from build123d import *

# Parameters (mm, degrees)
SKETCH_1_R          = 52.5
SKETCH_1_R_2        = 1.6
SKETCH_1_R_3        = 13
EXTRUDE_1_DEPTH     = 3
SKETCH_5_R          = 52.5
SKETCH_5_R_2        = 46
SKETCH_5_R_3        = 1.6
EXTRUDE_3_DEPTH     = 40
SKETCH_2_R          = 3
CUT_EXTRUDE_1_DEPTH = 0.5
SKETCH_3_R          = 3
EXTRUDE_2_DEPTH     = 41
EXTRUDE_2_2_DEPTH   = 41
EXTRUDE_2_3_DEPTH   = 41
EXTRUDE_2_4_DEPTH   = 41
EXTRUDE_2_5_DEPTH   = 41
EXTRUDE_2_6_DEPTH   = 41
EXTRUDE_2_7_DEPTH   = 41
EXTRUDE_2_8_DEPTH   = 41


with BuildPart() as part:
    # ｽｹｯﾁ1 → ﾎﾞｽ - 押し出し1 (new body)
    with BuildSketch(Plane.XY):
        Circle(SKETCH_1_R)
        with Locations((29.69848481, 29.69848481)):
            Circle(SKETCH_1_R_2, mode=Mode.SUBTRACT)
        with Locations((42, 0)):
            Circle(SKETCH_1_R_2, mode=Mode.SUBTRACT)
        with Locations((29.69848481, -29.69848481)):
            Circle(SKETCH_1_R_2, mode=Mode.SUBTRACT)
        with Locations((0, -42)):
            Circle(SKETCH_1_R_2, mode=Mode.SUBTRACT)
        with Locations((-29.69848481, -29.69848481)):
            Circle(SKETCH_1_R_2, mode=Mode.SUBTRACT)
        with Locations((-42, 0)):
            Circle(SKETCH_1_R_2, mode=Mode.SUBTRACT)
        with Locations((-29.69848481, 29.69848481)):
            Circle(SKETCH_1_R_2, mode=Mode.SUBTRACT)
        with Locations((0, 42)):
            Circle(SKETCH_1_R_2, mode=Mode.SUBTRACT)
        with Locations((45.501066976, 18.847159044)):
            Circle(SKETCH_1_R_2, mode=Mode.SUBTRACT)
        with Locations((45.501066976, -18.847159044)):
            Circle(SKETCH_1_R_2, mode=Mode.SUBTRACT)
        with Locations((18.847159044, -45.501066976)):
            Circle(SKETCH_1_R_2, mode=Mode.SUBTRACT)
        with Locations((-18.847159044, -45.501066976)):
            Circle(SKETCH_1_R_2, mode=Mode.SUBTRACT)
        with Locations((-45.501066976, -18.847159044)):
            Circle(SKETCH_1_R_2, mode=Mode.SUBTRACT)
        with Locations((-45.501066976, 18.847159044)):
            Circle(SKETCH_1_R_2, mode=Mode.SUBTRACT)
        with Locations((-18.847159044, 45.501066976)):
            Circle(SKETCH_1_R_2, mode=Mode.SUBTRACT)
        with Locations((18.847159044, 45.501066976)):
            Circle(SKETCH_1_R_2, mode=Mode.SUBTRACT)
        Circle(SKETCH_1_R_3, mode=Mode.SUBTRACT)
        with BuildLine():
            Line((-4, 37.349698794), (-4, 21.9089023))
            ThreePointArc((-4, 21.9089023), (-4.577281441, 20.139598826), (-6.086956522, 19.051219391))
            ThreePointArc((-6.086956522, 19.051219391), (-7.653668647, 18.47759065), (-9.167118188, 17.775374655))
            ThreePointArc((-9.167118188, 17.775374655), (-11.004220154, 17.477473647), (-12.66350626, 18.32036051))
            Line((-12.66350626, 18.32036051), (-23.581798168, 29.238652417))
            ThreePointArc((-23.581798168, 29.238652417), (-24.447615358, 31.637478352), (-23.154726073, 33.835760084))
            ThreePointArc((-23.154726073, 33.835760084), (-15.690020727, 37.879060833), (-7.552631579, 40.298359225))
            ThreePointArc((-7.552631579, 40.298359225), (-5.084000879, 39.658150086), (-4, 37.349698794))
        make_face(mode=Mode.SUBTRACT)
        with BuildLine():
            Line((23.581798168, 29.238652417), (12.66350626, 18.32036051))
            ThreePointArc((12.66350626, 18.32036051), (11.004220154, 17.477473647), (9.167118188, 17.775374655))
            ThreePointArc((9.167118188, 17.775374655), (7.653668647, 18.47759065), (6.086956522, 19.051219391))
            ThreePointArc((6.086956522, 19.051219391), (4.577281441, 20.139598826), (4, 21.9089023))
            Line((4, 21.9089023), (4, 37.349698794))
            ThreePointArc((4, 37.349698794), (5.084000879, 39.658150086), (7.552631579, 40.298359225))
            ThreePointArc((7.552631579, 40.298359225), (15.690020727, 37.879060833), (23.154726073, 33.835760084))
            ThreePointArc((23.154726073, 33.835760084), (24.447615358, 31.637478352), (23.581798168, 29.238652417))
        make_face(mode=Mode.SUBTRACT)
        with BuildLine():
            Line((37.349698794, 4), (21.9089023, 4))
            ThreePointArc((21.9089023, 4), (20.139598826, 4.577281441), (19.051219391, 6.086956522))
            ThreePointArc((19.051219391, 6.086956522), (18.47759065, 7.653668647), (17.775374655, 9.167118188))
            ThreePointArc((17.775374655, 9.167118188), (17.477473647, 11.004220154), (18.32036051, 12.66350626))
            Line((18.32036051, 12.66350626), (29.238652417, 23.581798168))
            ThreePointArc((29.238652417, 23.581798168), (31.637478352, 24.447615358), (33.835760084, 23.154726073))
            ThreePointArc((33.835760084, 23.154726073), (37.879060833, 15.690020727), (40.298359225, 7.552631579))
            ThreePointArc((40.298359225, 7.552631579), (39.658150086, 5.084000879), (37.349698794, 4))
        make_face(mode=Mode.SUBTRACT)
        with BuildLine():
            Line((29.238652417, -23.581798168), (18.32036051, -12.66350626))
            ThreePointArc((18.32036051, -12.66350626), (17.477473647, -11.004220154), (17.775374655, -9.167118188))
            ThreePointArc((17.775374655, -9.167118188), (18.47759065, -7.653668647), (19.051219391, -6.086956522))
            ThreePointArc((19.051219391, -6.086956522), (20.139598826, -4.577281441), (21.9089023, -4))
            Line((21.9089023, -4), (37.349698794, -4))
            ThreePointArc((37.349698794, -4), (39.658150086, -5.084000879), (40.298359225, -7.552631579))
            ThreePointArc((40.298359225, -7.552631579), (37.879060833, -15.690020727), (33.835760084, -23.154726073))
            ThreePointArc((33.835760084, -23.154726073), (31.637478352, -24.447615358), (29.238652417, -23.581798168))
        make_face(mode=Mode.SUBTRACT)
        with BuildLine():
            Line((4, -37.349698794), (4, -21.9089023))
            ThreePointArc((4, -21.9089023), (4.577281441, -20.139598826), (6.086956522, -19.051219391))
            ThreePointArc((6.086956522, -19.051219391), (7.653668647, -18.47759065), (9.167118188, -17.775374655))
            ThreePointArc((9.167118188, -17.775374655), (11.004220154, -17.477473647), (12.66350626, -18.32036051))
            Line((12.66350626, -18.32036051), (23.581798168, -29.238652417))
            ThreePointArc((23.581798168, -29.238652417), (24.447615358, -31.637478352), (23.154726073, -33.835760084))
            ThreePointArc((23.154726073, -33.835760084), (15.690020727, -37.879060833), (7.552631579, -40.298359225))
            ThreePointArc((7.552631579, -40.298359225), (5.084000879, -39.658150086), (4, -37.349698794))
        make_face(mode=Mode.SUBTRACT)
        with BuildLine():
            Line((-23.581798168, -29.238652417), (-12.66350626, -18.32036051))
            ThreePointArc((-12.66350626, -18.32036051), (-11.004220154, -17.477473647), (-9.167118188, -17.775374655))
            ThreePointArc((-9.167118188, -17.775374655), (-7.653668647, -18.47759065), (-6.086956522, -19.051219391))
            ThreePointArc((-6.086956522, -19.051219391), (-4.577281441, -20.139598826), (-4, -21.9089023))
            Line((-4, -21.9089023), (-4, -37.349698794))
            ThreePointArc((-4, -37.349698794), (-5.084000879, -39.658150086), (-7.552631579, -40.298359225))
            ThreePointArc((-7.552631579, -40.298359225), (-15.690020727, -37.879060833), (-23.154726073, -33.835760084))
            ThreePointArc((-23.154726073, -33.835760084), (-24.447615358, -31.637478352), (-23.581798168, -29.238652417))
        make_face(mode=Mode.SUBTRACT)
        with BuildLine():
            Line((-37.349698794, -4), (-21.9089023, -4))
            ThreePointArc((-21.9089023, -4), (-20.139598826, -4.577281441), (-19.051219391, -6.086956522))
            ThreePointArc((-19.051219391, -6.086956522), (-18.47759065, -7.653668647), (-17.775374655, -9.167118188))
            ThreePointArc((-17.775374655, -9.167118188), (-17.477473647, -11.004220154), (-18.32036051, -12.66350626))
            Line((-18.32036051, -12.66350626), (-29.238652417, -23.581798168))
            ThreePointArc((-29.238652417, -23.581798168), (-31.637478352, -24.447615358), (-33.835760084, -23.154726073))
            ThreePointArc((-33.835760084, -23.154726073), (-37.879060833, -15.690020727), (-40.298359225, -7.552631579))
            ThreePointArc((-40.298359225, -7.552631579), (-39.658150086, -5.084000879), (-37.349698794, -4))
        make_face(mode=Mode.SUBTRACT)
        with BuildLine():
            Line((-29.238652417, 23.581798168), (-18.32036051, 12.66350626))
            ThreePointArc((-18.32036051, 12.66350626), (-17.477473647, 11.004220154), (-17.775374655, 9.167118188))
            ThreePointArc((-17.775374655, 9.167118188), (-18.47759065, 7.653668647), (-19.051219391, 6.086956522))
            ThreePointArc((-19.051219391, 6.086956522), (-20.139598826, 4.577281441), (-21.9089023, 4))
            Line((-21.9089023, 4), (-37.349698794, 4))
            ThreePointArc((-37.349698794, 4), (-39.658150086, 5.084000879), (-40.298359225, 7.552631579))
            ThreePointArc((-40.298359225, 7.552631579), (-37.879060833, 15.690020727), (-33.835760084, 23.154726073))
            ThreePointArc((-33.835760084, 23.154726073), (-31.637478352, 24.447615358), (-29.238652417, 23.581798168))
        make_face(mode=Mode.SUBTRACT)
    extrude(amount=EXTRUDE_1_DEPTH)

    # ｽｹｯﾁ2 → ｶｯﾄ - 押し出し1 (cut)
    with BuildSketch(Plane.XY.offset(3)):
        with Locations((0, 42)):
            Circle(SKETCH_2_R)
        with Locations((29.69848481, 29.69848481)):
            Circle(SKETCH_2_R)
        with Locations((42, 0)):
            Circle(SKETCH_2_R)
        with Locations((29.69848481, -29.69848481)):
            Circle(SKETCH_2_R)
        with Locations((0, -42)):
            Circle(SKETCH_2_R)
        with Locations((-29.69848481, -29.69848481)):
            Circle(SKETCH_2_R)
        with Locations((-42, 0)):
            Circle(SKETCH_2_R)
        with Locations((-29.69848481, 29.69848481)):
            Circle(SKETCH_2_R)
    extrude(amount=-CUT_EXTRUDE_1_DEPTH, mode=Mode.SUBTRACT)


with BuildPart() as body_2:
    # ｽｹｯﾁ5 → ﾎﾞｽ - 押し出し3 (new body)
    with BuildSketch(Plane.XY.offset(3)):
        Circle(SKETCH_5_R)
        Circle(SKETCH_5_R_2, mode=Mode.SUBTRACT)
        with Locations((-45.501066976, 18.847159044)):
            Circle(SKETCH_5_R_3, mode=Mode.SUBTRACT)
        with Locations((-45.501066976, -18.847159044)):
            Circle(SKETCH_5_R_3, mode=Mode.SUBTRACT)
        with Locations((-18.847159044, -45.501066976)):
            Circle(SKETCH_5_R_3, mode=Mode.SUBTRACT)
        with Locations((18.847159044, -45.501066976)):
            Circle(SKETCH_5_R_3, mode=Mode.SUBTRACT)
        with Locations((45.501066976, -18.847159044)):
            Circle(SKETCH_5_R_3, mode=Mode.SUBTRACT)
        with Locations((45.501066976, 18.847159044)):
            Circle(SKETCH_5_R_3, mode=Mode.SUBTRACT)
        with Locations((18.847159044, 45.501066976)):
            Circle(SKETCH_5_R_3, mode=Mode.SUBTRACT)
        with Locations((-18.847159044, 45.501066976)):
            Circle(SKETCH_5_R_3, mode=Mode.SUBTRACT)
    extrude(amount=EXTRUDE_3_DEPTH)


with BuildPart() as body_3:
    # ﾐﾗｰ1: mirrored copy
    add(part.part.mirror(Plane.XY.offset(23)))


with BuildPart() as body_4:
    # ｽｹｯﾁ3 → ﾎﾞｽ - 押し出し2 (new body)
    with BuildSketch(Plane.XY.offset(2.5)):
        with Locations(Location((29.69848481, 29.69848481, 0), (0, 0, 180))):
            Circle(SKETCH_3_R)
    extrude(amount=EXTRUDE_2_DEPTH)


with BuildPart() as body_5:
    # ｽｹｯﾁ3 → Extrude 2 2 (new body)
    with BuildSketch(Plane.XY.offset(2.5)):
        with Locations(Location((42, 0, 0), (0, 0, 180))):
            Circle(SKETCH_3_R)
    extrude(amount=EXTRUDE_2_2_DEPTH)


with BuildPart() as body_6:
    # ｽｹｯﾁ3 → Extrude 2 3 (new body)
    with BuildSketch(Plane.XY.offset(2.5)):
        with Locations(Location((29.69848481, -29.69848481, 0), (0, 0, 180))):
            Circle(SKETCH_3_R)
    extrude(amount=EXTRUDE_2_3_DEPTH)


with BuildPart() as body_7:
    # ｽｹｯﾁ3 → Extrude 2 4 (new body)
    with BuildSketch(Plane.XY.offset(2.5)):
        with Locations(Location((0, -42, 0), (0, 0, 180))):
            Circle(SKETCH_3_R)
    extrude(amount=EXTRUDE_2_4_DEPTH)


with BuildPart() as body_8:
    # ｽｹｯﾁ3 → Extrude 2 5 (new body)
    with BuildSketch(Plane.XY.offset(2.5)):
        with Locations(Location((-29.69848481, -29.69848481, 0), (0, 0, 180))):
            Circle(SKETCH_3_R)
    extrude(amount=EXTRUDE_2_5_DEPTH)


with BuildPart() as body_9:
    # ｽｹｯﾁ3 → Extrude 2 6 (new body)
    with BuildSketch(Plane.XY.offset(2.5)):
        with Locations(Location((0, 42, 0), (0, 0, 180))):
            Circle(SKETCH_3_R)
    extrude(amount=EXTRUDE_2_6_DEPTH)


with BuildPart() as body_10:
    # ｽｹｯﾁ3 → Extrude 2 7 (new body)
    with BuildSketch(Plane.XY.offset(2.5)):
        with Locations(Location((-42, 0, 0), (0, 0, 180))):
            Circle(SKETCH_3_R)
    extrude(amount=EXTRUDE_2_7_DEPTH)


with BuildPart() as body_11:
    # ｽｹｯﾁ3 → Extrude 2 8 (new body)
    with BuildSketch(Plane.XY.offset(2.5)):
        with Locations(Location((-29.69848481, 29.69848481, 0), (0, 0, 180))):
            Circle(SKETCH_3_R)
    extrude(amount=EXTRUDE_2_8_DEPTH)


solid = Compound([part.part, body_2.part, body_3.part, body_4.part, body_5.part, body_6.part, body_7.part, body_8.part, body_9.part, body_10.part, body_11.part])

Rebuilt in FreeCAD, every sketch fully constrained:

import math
import FreeCAD as App
import Part
import Sketcher
from FreeCAD import Vector

doc = App.newDocument("Part")
body = doc.addObject("PartDesign::Body", "Body")

# Sketch on XY plane
sketch1 = body.newObject("Sketcher::SketchObject", "Sketch")
sketch1.AttachmentSupport = (doc.getObject("XY_Plane"), [""])
sketch1.MapMode = "FlatFace"
sketch1.addGeometry([
    Part.Circle(Vector(0, 0, 0), Vector(0, 0, 1), 52.5),  # 0
    Part.Circle(Vector(-29.7, -29.7, 0), Vector(0, 0, 1), 1.6),  # 1
    Part.Circle(Vector(-18.8, -45.5, 0), Vector(0, 0, 1), 1.6),  # 2
    Part.ArcOfCircle(Part.Circle(Vector(-21.5, -31.4, 0), Vector(0, 0, 1), 3), math.radians(135), math.radians(236)),  # 3
    Part.LineSegment(Vector(-23.6, -29.2, 0), Vector(-12.7, -18.3, 0)),  # 4
    Part.ArcOfCircle(Part.Circle(Vector(-10.5, -20.4, 0), Vector(0, 0, 1), 3), math.radians(63), math.radians(135)),  # 5
    Part.ArcOfCircle(Part.Circle(Vector(0, 0, 0), Vector(0, 0, 1), 20), math.radians(-117.28), math.radians(-107.72)),  # 6
    Part.ArcOfCircle(Part.Circle(Vector(-7, -21.9, 0), Vector(0, 0, 1), 3), math.radians(0), math.radians(72)),  # 7
    Part.LineSegment(Vector(-4, -21.9, 0), Vector(-4, -37.3, 0)),  # 8
    Part.ArcOfCircle(Part.Circle(Vector(-7, -37.3, 0), Vector(0, 0, 1), 3), math.radians(-101), math.radians(0)),  # 9
    Part.ArcOfCircle(Part.Circle(Vector(0, 0, 0), Vector(0, 0, 1), 41), math.radians(-124), math.radians(-101)),  # 10
    Part.Circle(Vector(-45.5, -18.8, 0), Vector(0, 0, 1), 1.6),  # 11
    Part.ArcOfCircle(Part.Circle(Vector(-37.3, -7, 0), Vector(0, 0, 1), 3), math.radians(90), math.radians(191)),  # 12
    Part.LineSegment(Vector(-37.3, -4, 0), Vector(-21.9, -4, 0)),  # 13
    Part.ArcOfCircle(Part.Circle(Vector(-21.9, -7, 0), Vector(0, 0, 1), 3), math.radians(18), math.radians(90)),  # 14
    Part.ArcOfCircle(Part.Circle(Vector(0, 0, 0), Vector(0, 0, 1), 20), math.radians(-162.28), math.radians(-152.72)),  # 15
    Part.ArcOfCircle(Part.Circle(Vector(-20.4, -10.5, 0), Vector(0, 0, 1), 3), math.radians(-45), math.radians(27)),  # 16
    Part.LineSegment(Vector(-18.3, -12.7, 0), Vector(-29.2, -23.6, 0)),  # 17
    Part.ArcOfCircle(Part.Circle(Vector(-31.4, -21.5, 0), Vector(0, 0, 1), 3), math.radians(-146), math.radians(-45)),  # 18
    Part.ArcOfCircle(Part.Circle(Vector(0, 0, 0), Vector(0, 0, 1), 41), math.radians(-169), math.radians(-146)),  # 19
    Part.Circle(Vector(0, -42, 0), Vector(0, 0, 1), 1.6),  # 20
    Part.Circle(Vector(18.8, -45.5, 0), Vector(0, 0, 1), 1.6),  # 21
    Part.ArcOfCircle(Part.Circle(Vector(7, -37.3, 0), Vector(0, 0, 1), 3), math.radians(180), math.radians(281)),  # 22
    Part.LineSegment(Vector(4, -37.3, 0), Vector(4, -21.9, 0)),  # 23
    Part.ArcOfCircle(Part.Circle(Vector(7, -21.9, 0), Vector(0, 0, 1), 3), math.radians(108), math.radians(180)),  # 24
    Part.ArcOfCircle(Part.Circle(Vector(0, 0, 0), Vector(0, 0, 1), 20), math.radians(-72.28), math.radians(-62.72)),  # 25
    Part.ArcOfCircle(Part.Circle(Vector(10.5, -20.4, 0), Vector(0, 0, 1), 3), math.radians(45), math.radians(117)),  # 26
    Part.LineSegment(Vector(12.7, -18.3, 0), Vector(23.6, -29.2, 0)),  # 27
    Part.ArcOfCircle(Part.Circle(Vector(21.5, -31.4, 0), Vector(0, 0, 1), 3), math.radians(-56), math.radians(45)),  # 28
    Part.ArcOfCircle(Part.Circle(Vector(0, 0, 0), Vector(0, 0, 1), 41), math.radians(-79), math.radians(-56)),  # 29
    Part.Circle(Vector(29.7, -29.7, 0), Vector(0, 0, 1), 1.6),  # 30
    Part.ArcOfCircle(Part.Circle(Vector(31.4, -21.5, 0), Vector(0, 0, 1), 3), math.radians(-135), math.radians(-34)),  # 31
    Part.LineSegment(Vector(29.2, -23.6, 0), Vector(18.3, -12.7, 0)),  # 32
    Part.ArcOfCircle(Part.Circle(Vector(20.4, -10.5, 0), Vector(0, 0, 1), 3), math.radians(153), math.radians(225)),  # 33
    Part.ArcOfCircle(Part.Circle(Vector(0, 0, 0), Vector(0, 0, 1), 20), math.radians(-27.28), math.radians(-17.72)),  # 34
    Part.ArcOfCircle(Part.Circle(Vector(21.9, -7, 0), Vector(0, 0, 1), 3), math.radians(90), math.radians(162)),  # 35
    Part.LineSegment(Vector(21.9, -4, 0), Vector(37.3, -4, 0)),  # 36
    Part.ArcOfCircle(Part.Circle(Vector(37.3, -7, 0), Vector(0, 0, 1), 3), math.radians(-11), math.radians(90)),  # 37
    Part.ArcOfCircle(Part.Circle(Vector(0, 0, 0), Vector(0, 0, 1), 41), math.radians(-34), math.radians(-11)),  # 38
    Part.Circle(Vector(45.5, -18.8, 0), Vector(0, 0, 1), 1.6),  # 39
    Part.Circle(Vector(-42, 0, 0), Vector(0, 0, 1), 1.6),  # 40
    Part.Circle(Vector(-45.5, 18.8, 0), Vector(0, 0, 1), 1.6),  # 41
    Part.ArcOfCircle(Part.Circle(Vector(-31.4, 21.5, 0), Vector(0, 0, 1), 3), math.radians(45), math.radians(146)),  # 42
    Part.LineSegment(Vector(-29.2, 23.6, 0), Vector(-18.3, 12.7, 0)),  # 43
    Part.ArcOfCircle(Part.Circle(Vector(-20.4, 10.5, 0), Vector(0, 0, 1), 3), math.radians(-27), math.radians(45)),  # 44
    Part.ArcOfCircle(Part.Circle(Vector(0, 0, 0), Vector(0, 0, 1), 20), math.radians(152.72), math.radians(162.28)),  # 45
    Part.ArcOfCircle(Part.Circle(Vector(-21.9, 7, 0), Vector(0, 0, 1), 3), math.radians(-90), math.radians(-18)),  # 46
    Part.LineSegment(Vector(-21.9, 4, 0), Vector(-37.3, 4, 0)),  # 47
    Part.ArcOfCircle(Part.Circle(Vector(-37.3, 7, 0), Vector(0, 0, 1), 3), math.radians(169), math.radians(270)),  # 48
    Part.ArcOfCircle(Part.Circle(Vector(0, 0, 0), Vector(0, 0, 1), 41), math.radians(146), math.radians(169)),  # 49
    Part.Circle(Vector(-29.7, 29.7, 0), Vector(0, 0, 1), 1.6),  # 50
    Part.ArcOfCircle(Part.Circle(Vector(-7, 37.3, 0), Vector(0, 0, 1), 3), math.radians(0), math.radians(101)),  # 51
    Part.LineSegment(Vector(-4, 37.3, 0), Vector(-4, 21.9, 0)),  # 52
    Part.ArcOfCircle(Part.Circle(Vector(-7, 21.9, 0), Vector(0, 0, 1), 3), math.radians(-72), math.radians(0)),  # 53
    Part.ArcOfCircle(Part.Circle(Vector(0, 0, 0), Vector(0, 0, 1), 20), math.radians(107.72), math.radians(117.28)),  # 54
    Part.ArcOfCircle(Part.Circle(Vector(-10.5, 20.4, 0), Vector(0, 0, 1), 3), math.radians(-135), math.radians(-63)),  # 55
    Part.LineSegment(Vector(-12.7, 18.3, 0), Vector(-23.6, 29.2, 0)),  # 56
    Part.ArcOfCircle(Part.Circle(Vector(-21.5, 31.4, 0), Vector(0, 0, 1), 3), math.radians(124), math.radians(225)),  # 57
    Part.ArcOfCircle(Part.Circle(Vector(0, 0, 0), Vector(0, 0, 1), 41), math.radians(101), math.radians(124)),  # 58
    Part.Circle(Vector(-18.8, 45.5, 0), Vector(0, 0, 1), 1.6),  # 59
    Part.Circle(Vector(0, 0, 0), Vector(0, 0, 1), 13),  # 60
    Part.Circle(Vector(42, 0, 0), Vector(0, 0, 1), 1.6),  # 61
    Part.ArcOfCircle(Part.Circle(Vector(37.3, 7, 0), Vector(0, 0, 1), 3), math.radians(-90), math.radians(11)),  # 62
    Part.LineSegment(Vector(37.3, 4, 0), Vector(21.9, 4, 0)),  # 63
    Part.ArcOfCircle(Part.Circle(Vector(21.9, 7, 0), Vector(0, 0, 1), 3), math.radians(-162), math.radians(-90)),  # 64
    Part.ArcOfCircle(Part.Circle(Vector(0, 0, 0), Vector(0, 0, 1), 20), math.radians(17.72), math.radians(27.28)),  # 65
    Part.ArcOfCircle(Part.Circle(Vector(20.4, 10.5, 0), Vector(0, 0, 1), 3), math.radians(135), math.radians(207)),  # 66
    Part.LineSegment(Vector(18.3, 12.7, 0), Vector(29.2, 23.6, 0)),  # 67
    Part.ArcOfCircle(Part.Circle(Vector(31.4, 21.5, 0), Vector(0, 0, 1), 3), math.radians(34), math.radians(135)),  # 68
    Part.ArcOfCircle(Part.Circle(Vector(0, 0, 0), Vector(0, 0, 1), 41), math.radians(11), math.radians(34)),  # 69
    Part.Circle(Vector(45.5, 18.8, 0), Vector(0, 0, 1), 1.6),  # 70
    Part.ArcOfCircle(Part.Circle(Vector(21.5, 31.4, 0), Vector(0, 0, 1), 3), math.radians(-45), math.radians(56)),  # 71
    Part.LineSegment(Vector(23.6, 29.2, 0), Vector(12.7, 18.3, 0)),  # 72
    Part.ArcOfCircle(Part.Circle(Vector(10.5, 20.4, 0), Vector(0, 0, 1), 3), math.radians(-117), math.radians(-45)),  # 73
    Part.ArcOfCircle(Part.Circle(Vector(0, 0, 0), Vector(0, 0, 1), 20), math.radians(62.72), math.radians(72.28)),  # 74
    Part.ArcOfCircle(Part.Circle(Vector(7, 21.9, 0), Vector(0, 0, 1), 3), math.radians(-180), math.radians(-108)),  # 75
    Part.LineSegment(Vector(4, 21.9, 0), Vector(4, 37.3, 0)),  # 76
    Part.ArcOfCircle(Part.Circle(Vector(7, 37.3, 0), Vector(0, 0, 1), 3), math.radians(79), math.radians(180)),  # 77
    Part.ArcOfCircle(Part.Circle(Vector(0, 0, 0), Vector(0, 0, 1), 41), math.radians(56), math.radians(79)),  # 78
    Part.Circle(Vector(0, 42, 0), Vector(0, 0, 1), 1.6),  # 79
    Part.Circle(Vector(18.8, 45.5, 0), Vector(0, 0, 1), 1.6),  # 80
    Part.Circle(Vector(29.7, 29.7, 0), Vector(0, 0, 1), 1.6),  # 81
], False)
sketch1.addConstraint([
    Sketcher.Constraint("Tangent", 3, 1, 4, 1),
    Sketcher.Constraint("Tangent", 4, 2, 5, 2),
    Sketcher.Constraint("Tangent", 5, 1, 6, 1),
    Sketcher.Constraint("Tangent", 6, 2, 7, 2),
    Sketcher.Constraint("Tangent", 7, 1, 8, 1),
    Sketcher.Constraint("Tangent", 8, 2, 9, 2),
    Sketcher.Constraint("Tangent", 9, 1, 10, 2),
    Sketcher.Constraint("Tangent", 10, 1, 3, 2),
    Sketcher.Constraint("Tangent", 12, 1, 13, 1),
    Sketcher.Constraint("Tangent", 13, 2, 14, 2),
    Sketcher.Constraint("Tangent", 14, 1, 15, 1),
    Sketcher.Constraint("Tangent", 15, 2, 16, 2),
    Sketcher.Constraint("Tangent", 16, 1, 17, 1),
    Sketcher.Constraint("Tangent", 17, 2, 18, 2),
    Sketcher.Constraint("Tangent", 18, 1, 19, 2),
    Sketcher.Constraint("Tangent", 19, 1, 12, 2),
    Sketcher.Constraint("Tangent", 22, 1, 23, 1),
    Sketcher.Constraint("Tangent", 23, 2, 24, 2),
    Sketcher.Constraint("Tangent", 24, 1, 25, 1),
    Sketcher.Constraint("Tangent", 25, 2, 26, 2),
    Sketcher.Constraint("Tangent", 26, 1, 27, 1),
    Sketcher.Constraint("Tangent", 27, 2, 28, 2),
    Sketcher.Constraint("Tangent", 28, 1, 29, 2),
    Sketcher.Constraint("Tangent", 29, 1, 22, 2),
    Sketcher.Constraint("Tangent", 31, 1, 32, 1),
    Sketcher.Constraint("Tangent", 32, 2, 33, 2),
    Sketcher.Constraint("Tangent", 33, 1, 34, 1),
    Sketcher.Constraint("Tangent", 34, 2, 35, 2),
    Sketcher.Constraint("Tangent", 35, 1, 36, 1),
    Sketcher.Constraint("Tangent", 36, 2, 37, 2),
    Sketcher.Constraint("Tangent", 37, 1, 38, 2),
    Sketcher.Constraint("Tangent", 38, 1, 31, 2),
    Sketcher.Constraint("Tangent", 42, 1, 43, 1),
    Sketcher.Constraint("Tangent", 43, 2, 44, 2),
    Sketcher.Constraint("Tangent", 44, 1, 45, 1),
    Sketcher.Constraint("Tangent", 45, 2, 46, 2),
    Sketcher.Constraint("Tangent", 46, 1, 47, 1),
    Sketcher.Constraint("Tangent", 47, 2, 48, 2),
    Sketcher.Constraint("Tangent", 48, 1, 49, 2),
    Sketcher.Constraint("Tangent", 49, 1, 42, 2),
    Sketcher.Constraint("Tangent", 51, 1, 52, 1),
    Sketcher.Constraint("Tangent", 52, 2, 53, 2),
    Sketcher.Constraint("Tangent", 53, 1, 54, 1),
    Sketcher.Constraint("Tangent", 54, 2, 55, 2),
    Sketcher.Constraint("Tangent", 55, 1, 56, 1),
    Sketcher.Constraint("Tangent", 56, 2, 57, 2),
    Sketcher.Constraint("Tangent", 57, 1, 58, 2),
    Sketcher.Constraint("Tangent", 58, 1, 51, 2),
    Sketcher.Constraint("Tangent", 62, 1, 63, 1),
    Sketcher.Constraint("Tangent", 63, 2, 64, 2),
    Sketcher.Constraint("Tangent", 64, 1, 65, 1),
    Sketcher.Constraint("Tangent", 65, 2, 66, 2),
    Sketcher.Constraint("Tangent", 66, 1, 67, 1),
    Sketcher.Constraint("Tangent", 67, 2, 68, 2),
    Sketcher.Constraint("Tangent", 68, 1, 69, 2),
    Sketcher.Constraint("Tangent", 69, 1, 62, 2),
    Sketcher.Constraint("Tangent", 71, 1, 72, 1),
    Sketcher.Constraint("Tangent", 72, 2, 73, 2),
    Sketcher.Constraint("Tangent", 73, 1, 74, 1),
    Sketcher.Constraint("Tangent", 74, 2, 75, 2),
    Sketcher.Constraint("Tangent", 75, 1, 76, 1),
    Sketcher.Constraint("Tangent", 76, 2, 77, 2),
    Sketcher.Constraint("Tangent", 77, 1, 78, 2),
    Sketcher.Constraint("Tangent", 78, 1, 71, 2),
    Sketcher.Constraint("Vertical", 8),
    Sketcher.Constraint("Horizontal", 13),
    Sketcher.Constraint("Vertical", 23),
    Sketcher.Constraint("Horizontal", 36),
    Sketcher.Constraint("Horizontal", 47),
    Sketcher.Constraint("Vertical", 52),
    Sketcher.Constraint("Horizontal", 63),
    Sketcher.Constraint("Vertical", 76),
    Sketcher.Constraint("Coincident", 0, 3, -1, 1),
    Sketcher.Constraint("Coincident", 6, 3, -1, 1),
    Sketcher.Constraint("Coincident", 10, 3, -1, 1),
    Sketcher.Constraint("Coincident", 15, 3, -1, 1),
    Sketcher.Constraint("Coincident", 19, 3, -1, 1),
    Sketcher.Constraint("Coincident", 25, 3, -1, 1),
    Sketcher.Constraint("Coincident", 29, 3, -1, 1),
    Sketcher.Constraint("Coincident", 34, 3, -1, 1),
    Sketcher.Constraint("Coincident", 38, 3, -1, 1),
    Sketcher.Constraint("Coincident", 45, 3, -1, 1),
    Sketcher.Constraint("Coincident", 49, 3, -1, 1),
    Sketcher.Constraint("Coincident", 54, 3, -1, 1),
    Sketcher.Constraint("Coincident", 58, 3, -1, 1),
    Sketcher.Constraint("Coincident", 60, 3, -1, 1),
    Sketcher.Constraint("Coincident", 65, 3, -1, 1),
    Sketcher.Constraint("Coincident", 69, 3, -1, 1),
    Sketcher.Constraint("Coincident", 74, 3, -1, 1),
    Sketcher.Constraint("Coincident", 78, 3, -1, 1),
    Sketcher.Constraint("Equal", 1, 2),
    Sketcher.Constraint("Equal", 3, 5),
    Sketcher.Constraint("Equal", 5, 7),
    Sketcher.Constraint("Equal", 7, 9),
    Sketcher.Constraint("Equal", 2, 11),
    Sketcher.Constraint("Equal", 9, 12),
    Sketcher.Constraint("Equal", 12, 14),
    Sketcher.Constraint("Equal", 6, 15),
    Sketcher.Constraint("Equal", 14, 16),
    Sketcher.Constraint("Equal", 16, 18),
    Sketcher.Constraint("Equal", 10, 19),
    Sketcher.Constraint("Equal", 11, 20),
    Sketcher.Constraint("Equal", 20, 21),
    Sketcher.Constraint("Equal", 18, 22),
    Sketcher.Constraint("Equal", 22, 24),
    Sketcher.Constraint("Equal", 15, 25),
    Sketcher.Constraint("Equal", 24, 26),
    Sketcher.Constraint("Equal", 26, 28),
    Sketcher.Constraint("Equal", 19, 29),
    Sketcher.Constraint("Equal", 21, 30),
    Sketcher.Constraint("Equal", 28, 31),
    Sketcher.Constraint("Equal", 31, 33),
    Sketcher.Constraint("Equal", 25, 34),
    Sketcher.Constraint("Equal", 33, 35),
    Sketcher.Constraint("Equal", 35, 37),
    Sketcher.Constraint("Equal", 29, 38),
    Sketcher.Constraint("Equal", 30, 39),
    Sketcher.Constraint("Equal", 39, 40),
    Sketcher.Constraint("Equal", 40, 41),
    Sketcher.Constraint("Equal", 37, 42),
    Sketcher.Constraint("Equal", 42, 44),
    Sketcher.Constraint("Equal", 34, 45),
    Sketcher.Constraint("Equal", 44, 46),
    Sketcher.Constraint("Equal", 46, 48),
    Sketcher.Constraint("Equal", 38, 49),
    Sketcher.Constraint("Equal", 41, 50),
    Sketcher.Constraint("Equal", 48, 51),
    Sketcher.Constraint("Equal", 51, 53),
    Sketcher.Constraint("Equal", 45, 54),
    Sketcher.Constraint("Equal", 53, 55),
    Sketcher.Constraint("Equal", 55, 57),
    Sketcher.Constraint("Equal", 49, 58),
    Sketcher.Constraint("Equal", 50, 59),
    Sketcher.Constraint("Equal", 59, 61),
    Sketcher.Constraint("Equal", 57, 62),
    Sketcher.Constraint("Equal", 62, 64),
    Sketcher.Constraint("Equal", 54, 65),
    Sketcher.Constraint("Equal", 64, 66),
    Sketcher.Constraint("Equal", 66, 68),
    Sketcher.Constraint("Equal", 58, 69),
    Sketcher.Constraint("Equal", 61, 70),
    Sketcher.Constraint("Equal", 68, 71),
    Sketcher.Constraint("Equal", 71, 73),
    Sketcher.Constraint("Equal", 65, 74),
    Sketcher.Constraint("Equal", 73, 75),
    Sketcher.Constraint("Equal", 75, 77),
    Sketcher.Constraint("Equal", 69, 78),
    Sketcher.Constraint("Equal", 70, 79),
    Sketcher.Constraint("Equal", 79, 80),
    Sketcher.Constraint("Equal", 80, 81),
    Sketcher.Constraint("Symmetric", 39, 3, 41, 3, -1, 1),
    Sketcher.Constraint("Symmetric", 30, 3, 50, 3, -1, 1),
    Sketcher.Constraint("Symmetric", 21, 3, 59, 3, -1, 1),
    Sketcher.Constraint("Symmetric", 40, 3, 61, 3, -1, 1),
    Sketcher.Constraint("Symmetric", 11, 3, 70, 3, -1, 1),
    Sketcher.Constraint("Symmetric", 20, 3, 79, 3, -1, 1),
    Sketcher.Constraint("Symmetric", 2, 3, 80, 3, -1, 1),
    Sketcher.Constraint("Symmetric", 1, 3, 81, 3, -1, 1),
    Sketcher.Constraint("Symmetric", 31, 1, 42, 1, -1, 1),
    Sketcher.Constraint("Symmetric", 26, 1, 55, 1, -1, 1),
    Sketcher.Constraint("Symmetric", 16, 1, 66, 1, -1, 1),
    Sketcher.Constraint("Symmetric", 3, 1, 71, 1, -1, 1),
    Sketcher.Constraint("Symmetric", 2, 3, 21, 3, -2),
    Sketcher.Constraint("Symmetric", 1, 3, 30, 3, -2),
    Sketcher.Constraint("Symmetric", 11, 3, 39, 3, -2),
    Sketcher.Constraint("Symmetric", 4, 2, 26, 1, -2),
    Sketcher.Constraint("Symmetric", 17, 2, 31, 1, -2),
    Sketcher.Constraint("PointOnObject", 20, 3, -2),
    Sketcher.Constraint("PointOnObject", 40, 3, -1),
    Sketcher.Constraint("Parallel", 4, 17),
    Sketcher.Constraint("Perpendicular", 17, 27),
    Sketcher.Constraint("Horizontal", 9, 3, 22, 3),
    Sketcher.Constraint("Horizontal", 14, 3, 35, 3),
    Sketcher.Constraint("Horizontal", 48, 3, 62, 3),
    Sketcher.Constraint("Horizontal", 53, 3, 75, 3),
    Sketcher.Constraint("Vertical", 14, 3, 46, 3),
    Sketcher.Constraint("Vertical", 9, 3, 51, 3),
    Sketcher.Constraint("Equal", 63, 8),
    Sketcher.Constraint("Equal", 4, 17),
    Sketcher.Constraint("Diameter", 0, 105.0),
    Sketcher.Constraint("Diameter", 60, 26.0),
    Sketcher.Constraint("Radius", 3, 3.0),
    Sketcher.Constraint("Radius", 6, 20.0),
    Sketcher.Constraint("Radius", 10, 41.0),
    Sketcher.Constraint("Diameter", 1, 3.2),
    Sketcher.Constraint("DistanceX", 7, 3, -1, 1, 7.0),
    Sketcher.Constraint("DistanceY", 20, 3, -1, 1, 42.0),
    Sketcher.Constraint("DistanceX", 40, 3, -1, 1, 42.0),
    Sketcher.Constraint("DistanceX", 3, 1, -1, 1, 23.581798),
    Sketcher.Constraint("DistanceX", 2, 3, -1, 1, 18.847159),
    Sketcher.Constraint("DistanceY", 11, 3, -1, 1, 18.847159),
    Sketcher.Constraint("DistanceX", 1, 3, -1, 1, 29.698485),
    Sketcher.Constraint("DistanceY", 1, 3, -1, 1, 29.698485),
    Sketcher.Constraint("DistanceY", 2, 3, -1, 1, 45.501067),
    Sketcher.Constraint("DistanceX", 11, 3, -1, 1, 45.501067),
])
pad1 = body.newObject("PartDesign::Pad", "Pad")
pad1.Profile = sketch1
pad1.Length = 3

# Sketch on XY plane
sketch2 = body.newObject("Sketcher::SketchObject", "Sketch001")
sketch2.AttachmentSupport = (doc.getObject("XY_Plane"), [""])
sketch2.MapMode = "FlatFace"
sketch2.AttachmentOffset = App.Placement(Vector(0, 0, 3), App.Rotation())
sketch2.addGeometry([
    Part.Circle(Vector(0, 42, 0), Vector(0, 0, 1), 3),  # 0
    Part.Circle(Vector(29.7, 29.7, 0), Vector(0, 0, 1), 3),  # 1
    Part.Circle(Vector(42, 0, 0), Vector(0, 0, 1), 3),  # 2
    Part.Circle(Vector(29.7, -29.7, 0), Vector(0, 0, 1), 3),  # 3
    Part.Circle(Vector(0, -42, 0), Vector(0, 0, 1), 3),  # 4
    Part.Circle(Vector(-29.7, -29.7, 0), Vector(0, 0, 1), 3),  # 5
    Part.Circle(Vector(-42, 0, 0), Vector(0, 0, 1), 3),  # 6
    Part.Circle(Vector(-29.7, 29.7, 0), Vector(0, 0, 1), 3),  # 7
], False)
sketch2.addConstraint([
    Sketcher.Constraint("Equal", 0, 1),
    Sketcher.Constraint("Equal", 1, 2),
    Sketcher.Constraint("Equal", 2, 3),
    Sketcher.Constraint("Equal", 3, 4),
    Sketcher.Constraint("Equal", 4, 5),
    Sketcher.Constraint("Equal", 5, 6),
    Sketcher.Constraint("Equal", 6, 7),
    Sketcher.Constraint("Symmetric", 0, 3, 4, 3, -1, 1),
    Sketcher.Constraint("Symmetric", 1, 3, 5, 3, -1, 1),
    Sketcher.Constraint("Symmetric", 2, 3, 6, 3, -1, 1),
    Sketcher.Constraint("Symmetric", 3, 3, 7, 3, -1, 1),
    Sketcher.Constraint("Symmetric", 3, 3, 5, 3, -2),
    Sketcher.Constraint("PointOnObject", 0, 3, -2),
    Sketcher.Constraint("PointOnObject", 2, 3, -1),
    Sketcher.Constraint("Diameter", 0, 6.0),
    Sketcher.Constraint("DistanceY", -1, 1, 0, 3, 42.0),
    Sketcher.Constraint("DistanceX", -1, 1, 2, 3, 42.0),
    Sketcher.Constraint("DistanceY", 3, 3, 1, 3, 59.39697),
    Sketcher.Constraint("DistanceX", 5, 3, 3, 3, 59.39697),
])
pocket1 = body.newObject("PartDesign::Pocket", "Pocket")
pocket1.Profile = sketch2
pocket1.Length = 0.5
body2 = doc.addObject("PartDesign::Body", "Body001")

# Sketch on XY plane
sketch3 = body2.newObject("Sketcher::SketchObject", "Sketch002")
sketch3.AttachmentSupport = (doc.getObject("XY_Plane001"), [""])
sketch3.MapMode = "FlatFace"
sketch3.AttachmentOffset = App.Placement(Vector(0, 0, 3), App.Rotation())
sketch3.addGeometry([
    Part.Circle(Vector(0, 0, 0), Vector(0, 0, 1), 52.5),  # 0
    Part.Circle(Vector(-18.8, -45.5, 0), Vector(0, 0, 1), 1.6),  # 1
    Part.Circle(Vector(-45.5, -18.8, 0), Vector(0, 0, 1), 1.6),  # 2
    Part.Circle(Vector(18.8, -45.5, 0), Vector(0, 0, 1), 1.6),  # 3
    Part.Circle(Vector(45.5, -18.8, 0), Vector(0, 0, 1), 1.6),  # 4
    Part.Circle(Vector(-45.5, 18.8, 0), Vector(0, 0, 1), 1.6),  # 5
    Part.Circle(Vector(-18.8, 45.5, 0), Vector(0, 0, 1), 1.6),  # 6
    Part.Circle(Vector(0, 0, 0), Vector(0, 0, 1), 46),  # 7
    Part.Circle(Vector(45.5, 18.8, 0), Vector(0, 0, 1), 1.6),  # 8
    Part.Circle(Vector(18.8, 45.5, 0), Vector(0, 0, 1), 1.6),  # 9
], False)
sketch3.addConstraint([
    Sketcher.Constraint("Coincident", 0, 3, -1, 1),
    Sketcher.Constraint("Coincident", 7, 3, -1, 1),
    Sketcher.Constraint("Equal", 1, 2),
    Sketcher.Constraint("Equal", 2, 3),
    Sketcher.Constraint("Equal", 3, 4),
    Sketcher.Constraint("Equal", 4, 5),
    Sketcher.Constraint("Equal", 5, 6),
    Sketcher.Constraint("Equal", 6, 8),
    Sketcher.Constraint("Equal", 8, 9),
    Sketcher.Constraint("Symmetric", 4, 3, 5, 3, -1, 1),
    Sketcher.Constraint("Symmetric", 3, 3, 6, 3, -1, 1),
    Sketcher.Constraint("Symmetric", 2, 3, 8, 3, -1, 1),
    Sketcher.Constraint("Symmetric", 1, 3, 9, 3, -1, 1),
    Sketcher.Constraint("Symmetric", 1, 3, 3, 3, -2),
    Sketcher.Constraint("Symmetric", 2, 3, 4, 3, -2),
    Sketcher.Constraint("Diameter", 0, 105.0),
    Sketcher.Constraint("Diameter", 7, 92.0),
    Sketcher.Constraint("Diameter", 1, 3.2),
    Sketcher.Constraint("DistanceX", 1, 3, -1, 1, 18.847159),
    Sketcher.Constraint("DistanceY", 2, 3, -1, 1, 18.847159),
    Sketcher.Constraint("DistanceY", 1, 3, -1, 1, 45.501067),
    Sketcher.Constraint("DistanceX", 2, 3, -1, 1, 45.501067),
])
pad2 = body2.newObject("PartDesign::Pad", "Pad001")
pad2.Profile = sketch3
pad2.Length = 40
body3 = doc.addObject("PartDesign::Body", "Body002")
doc.recompute()

mirroring = doc.addObject("Part::Mirroring", "Mirroring")
mirroring.Source = body
mirroring.Base = Vector(0, 0, 23)
mirroring.Normal = Vector(0, 0, 1)
body3.BaseFeature = mirroring
doc.recompute()
body4 = doc.addObject("PartDesign::Body", "Body003")

# Sketch on XY plane
sketch4 = body4.newObject("Sketcher::SketchObject", "Sketch003")
sketch4.AttachmentSupport = (doc.getObject("XY_Plane003"), [""])
sketch4.MapMode = "FlatFace"
sketch4.AttachmentOffset = App.Placement(Vector(0, 0, 2.5), App.Rotation())
sketch4.addGeometry(Part.Circle(Vector(29.7, 29.7, 0), Vector(0, 0, 1), 3), False)
sketch4.addConstraint([
    Sketcher.Constraint("Diameter", 0, 6.0),
    Sketcher.Constraint("DistanceX", -1, 1, 0, 3, 29.698485),
    Sketcher.Constraint("DistanceY", -1, 1, 0, 3, 29.698485),
])
pad3 = body4.newObject("PartDesign::Pad", "Pad002")
pad3.Profile = sketch4
pad3.Length = 41
body5 = doc.addObject("PartDesign::Body", "Body004")

# Sketch on XY plane
sketch5 = body5.newObject("Sketcher::SketchObject", "Sketch004")
sketch5.AttachmentSupport = (doc.getObject("XY_Plane004"), [""])
sketch5.MapMode = "FlatFace"
sketch5.AttachmentOffset = App.Placement(Vector(0, 0, 2.5), App.Rotation())
sketch5.addGeometry(Part.Circle(Vector(42, 0, 0), Vector(0, 0, 1), 3), False)
sketch5.addConstraint([
    Sketcher.Constraint("PointOnObject", 0, 3, -1),
    Sketcher.Constraint("Diameter", 0, 6.0),
    Sketcher.Constraint("DistanceX", -1, 1, 0, 3, 42.0),
])
pad4 = body5.newObject("PartDesign::Pad", "Pad003")
pad4.Profile = sketch5
pad4.Length = 41
body6 = doc.addObject("PartDesign::Body", "Body005")

# Sketch on XY plane
sketch6 = body6.newObject("Sketcher::SketchObject", "Sketch005")
sketch6.AttachmentSupport = (doc.getObject("XY_Plane005"), [""])
sketch6.MapMode = "FlatFace"
sketch6.AttachmentOffset = App.Placement(Vector(0, 0, 2.5), App.Rotation())
sketch6.addGeometry(Part.Circle(Vector(29.7, -29.7, 0), Vector(0, 0, 1), 3), False)
sketch6.addConstraint([
    Sketcher.Constraint("Diameter", 0, 6.0),
    Sketcher.Constraint("DistanceX", -1, 1, 0, 3, 29.698485),
    Sketcher.Constraint("DistanceY", 0, 3, -1, 1, 29.698485),
])
pad5 = body6.newObject("PartDesign::Pad", "Pad004")
pad5.Profile = sketch6
pad5.Length = 41
body7 = doc.addObject("PartDesign::Body", "Body006")

# Sketch on XY plane
sketch7 = body7.newObject("Sketcher::SketchObject", "Sketch006")
sketch7.AttachmentSupport = (doc.getObject("XY_Plane006"), [""])
sketch7.MapMode = "FlatFace"
sketch7.AttachmentOffset = App.Placement(Vector(0, 0, 2.5), App.Rotation())
sketch7.addGeometry(Part.Circle(Vector(0, -42, 0), Vector(0, 0, 1), 3), False)
sketch7.addConstraint([
    Sketcher.Constraint("PointOnObject", 0, 3, -2),
    Sketcher.Constraint("Diameter", 0, 6.0),
    Sketcher.Constraint("DistanceY", 0, 3, -1, 1, 42.0),
])
pad6 = body7.newObject("PartDesign::Pad", "Pad005")
pad6.Profile = sketch7
pad6.Length = 41
body8 = doc.addObject("PartDesign::Body", "Body007")

# Sketch on XY plane
sketch8 = body8.newObject("Sketcher::SketchObject", "Sketch007")
sketch8.AttachmentSupport = (doc.getObject("XY_Plane007"), [""])
sketch8.MapMode = "FlatFace"
sketch8.AttachmentOffset = App.Placement(Vector(0, 0, 2.5), App.Rotation())
sketch8.addGeometry(Part.Circle(Vector(-29.7, -29.7, 0), Vector(0, 0, 1), 3), False)
sketch8.addConstraint([
    Sketcher.Constraint("Diameter", 0, 6.0),
    Sketcher.Constraint("DistanceX", 0, 3, -1, 1, 29.698485),
    Sketcher.Constraint("DistanceY", 0, 3, -1, 1, 29.698485),
])
pad7 = body8.newObject("PartDesign::Pad", "Pad006")
pad7.Profile = sketch8
pad7.Length = 41
body9 = doc.addObject("PartDesign::Body", "Body008")

# Sketch on XY plane
sketch9 = body9.newObject("Sketcher::SketchObject", "Sketch008")
sketch9.AttachmentSupport = (doc.getObject("XY_Plane008"), [""])
sketch9.MapMode = "FlatFace"
sketch9.AttachmentOffset = App.Placement(Vector(0, 0, 2.5), App.Rotation())
sketch9.addGeometry(Part.Circle(Vector(0, 42, 0), Vector(0, 0, 1), 3), False)
sketch9.addConstraint([
    Sketcher.Constraint("PointOnObject", 0, 3, -2),
    Sketcher.Constraint("Diameter", 0, 6.0),
    Sketcher.Constraint("DistanceY", -1, 1, 0, 3, 42.0),
])
pad8 = body9.newObject("PartDesign::Pad", "Pad007")
pad8.Profile = sketch9
pad8.Length = 41
body10 = doc.addObject("PartDesign::Body", "Body009")

# Sketch on XY plane
sketch10 = body10.newObject("Sketcher::SketchObject", "Sketch009")
sketch10.AttachmentSupport = (doc.getObject("XY_Plane009"), [""])
sketch10.MapMode = "FlatFace"
sketch10.AttachmentOffset = App.Placement(Vector(0, 0, 2.5), App.Rotation())
sketch10.addGeometry(Part.Circle(Vector(-42, 0, 0), Vector(0, 0, 1), 3), False)
sketch10.addConstraint([
    Sketcher.Constraint("PointOnObject", 0, 3, -1),
    Sketcher.Constraint("Diameter", 0, 6.0),
    Sketcher.Constraint("DistanceX", 0, 3, -1, 1, 42.0),
])
pad9 = body10.newObject("PartDesign::Pad", "Pad008")
pad9.Profile = sketch10
pad9.Length = 41
body11 = doc.addObject("PartDesign::Body", "Body010")

# Sketch on XY plane
sketch11 = body11.newObject("Sketcher::SketchObject", "Sketch010")
sketch11.AttachmentSupport = (doc.getObject("XY_Plane010"), [""])
sketch11.MapMode = "FlatFace"
sketch11.AttachmentOffset = App.Placement(Vector(0, 0, 2.5), App.Rotation())
sketch11.addGeometry(Part.Circle(Vector(-29.7, 29.7, 0), Vector(0, 0, 1), 3), False)
sketch11.addConstraint([
    Sketcher.Constraint("Diameter", 0, 6.0),
    Sketcher.Constraint("DistanceX", 0, 3, -1, 1, 29.698485),
    Sketcher.Constraint("DistanceY", -1, 1, 0, 3, 29.698485),
])
pad10 = body11.newObject("PartDesign::Pad", "Pad009")
pad10.Profile = sketch11
pad10.Length = 41
mirroring.Visibility = False

doc.recompute()
